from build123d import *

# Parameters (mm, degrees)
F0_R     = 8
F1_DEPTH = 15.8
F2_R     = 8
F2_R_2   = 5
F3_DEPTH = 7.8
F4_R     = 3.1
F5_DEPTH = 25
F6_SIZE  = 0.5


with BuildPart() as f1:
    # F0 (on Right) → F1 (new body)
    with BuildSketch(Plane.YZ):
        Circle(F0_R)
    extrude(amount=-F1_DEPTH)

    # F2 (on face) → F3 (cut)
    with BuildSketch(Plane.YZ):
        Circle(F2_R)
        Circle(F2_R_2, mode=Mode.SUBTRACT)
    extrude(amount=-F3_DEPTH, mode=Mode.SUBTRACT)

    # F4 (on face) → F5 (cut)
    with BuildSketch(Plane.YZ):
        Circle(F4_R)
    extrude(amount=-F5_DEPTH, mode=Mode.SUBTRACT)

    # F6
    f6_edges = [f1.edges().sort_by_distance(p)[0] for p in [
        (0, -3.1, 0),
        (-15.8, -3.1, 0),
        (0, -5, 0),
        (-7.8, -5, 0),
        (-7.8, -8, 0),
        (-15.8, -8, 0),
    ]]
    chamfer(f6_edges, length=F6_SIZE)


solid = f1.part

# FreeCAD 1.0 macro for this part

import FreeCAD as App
import Part
import Sketcher

V = App.Vector
Q = App.Units.Quantity


def edges_at(feature, points):
    """Names of the edges that pass closest to the given points."""
    edges = feature.Shape.Edges
    near = lambda p: min(range(len(edges)), key=lambda i: edges[i].distToShape(Part.Vertex(*p))[0])
    return sorted({f"Edge{near(p) + 1}" for p in points})

doc = App.newDocument("Part")
params = doc.addObject("Spreadsheet::Sheet", "Params")
for row, (alias, value) in enumerate([
    ("sketch1_diameter", "16 mm"),
    ("pad1_length", "15.8 mm"),
    ("sketch2_diameter", "16 mm"),
    ("sketch2_diameter2", "10 mm"),
    ("pocket1_length", "7.8 mm"),
    ("sketch3_diameter", "6.2 mm"),
    ("pocket2_length", "25 mm"),
    ("chamfer_size", "0.5 mm"),
], start=1):
    params.set(f"A{row}", alias)
    params.set(f"B{row}", "=" + value)
    params.setAlias(f"B{row}", alias)

body = doc.addObject("PartDesign::Body", "Body")

# Sketch on YZ plane
sketch1 = body.newObject("Sketcher::SketchObject", "Sketch")
sketch1.AttachmentSupport = (doc.getObject("YZ_Plane"), [""])
sketch1.MapMode = "FlatFace"
sketch1.addGeometry(Part.Circle(V(0, 0, 0), V(0, 0, 1), 8), False)
sketch1.addConstraint(Sketcher.Constraint("Coincident", 0, 3, -1, 1))
sketch1.addConstraint(Sketcher.Constraint("Diameter", 0, Q("16 mm")))
sketch1.setExpression("Constraints[1]", "Params.sketch1_diameter")
pad1 = body.newObject("PartDesign::Pad", "Pad")
pad1.Profile = sketch1
pad1.setExpression("Length", "Params.pad1_length")
pad1.Reversed = True

# Sketch on YZ plane
sketch2 = body.newObject("Sketcher::SketchObject", "Sketch001")
sketch2.AttachmentSupport = (doc.getObject("YZ_Plane"), [""])
sketch2.MapMode = "FlatFace"
sketch2.addGeometry(Part.Circle(V(0, 0, 0), V(0, 0, 1), 8), False)
sketch2.addGeometry(Part.Circle(V(0, 0, 0), V(0, 0, 1), 5), False)
sketch2.addConstraint(Sketcher.Constraint("Coincident", 0, 3, -1, 1))
sketch2.addConstraint(Sketcher.Constraint("Coincident", 1, 3, -1, 1))
sketch2.addConstraint(Sketcher.Constraint("Diameter", 0, Q("16 mm")))
sketch2.addConstraint(Sketcher.Constraint("Diameter", 1, Q("10 mm")))
sketch2.setExpression("Constraints[2]", "Params.sketch2_diameter")
sketch2.setExpression("Constraints[3]", "Params.sketch2_diameter2")
pocket1 = body.newObject("PartDesign::Pocket", "Pocket")
pocket1.Profile = sketch2
pocket1.setExpression("Length", "Params.pocket1_length")

# Sketch on YZ plane
sketch3 = body.newObject("Sketcher::SketchObject", "Sketch002")
sketch3.AttachmentSupport = (doc.getObject("YZ_Plane"), [""])
sketch3.MapMode = "FlatFace"
sketch3.addGeometry(Part.Circle(V(0, 0, 0), V(0, 0, 1), 3.1), False)
sketch3.addConstraint(Sketcher.Constraint("Coincident", 0, 3, -1, 1))
sketch3.addConstraint(Sketcher.Constraint("Diameter", 0, Q("6.2 mm")))
sketch3.setExpression("Constraints[1]", "Params.sketch3_diameter")
pocket2 = body.newObject("PartDesign::Pocket", "Pocket001")
pocket2.Profile = sketch3
pocket2.setExpression("Length", "Params.pocket2_length")
doc.recompute()

chamfer = body.newObject("PartDesign::Chamfer", "Chamfer")
chamfer.Base = (pocket2, edges_at(pocket2, [
    (0, -3.1, 0),
    (-15.8, -3.1, 0),
    (0, -5, 0),
    (-7.8, -5, 0),
    (-7.8, -8, 0),
    (-15.8, -8, 0),
]))
chamfer.setExpression("Size", "Params.chamfer_size")

doc.recompute()
